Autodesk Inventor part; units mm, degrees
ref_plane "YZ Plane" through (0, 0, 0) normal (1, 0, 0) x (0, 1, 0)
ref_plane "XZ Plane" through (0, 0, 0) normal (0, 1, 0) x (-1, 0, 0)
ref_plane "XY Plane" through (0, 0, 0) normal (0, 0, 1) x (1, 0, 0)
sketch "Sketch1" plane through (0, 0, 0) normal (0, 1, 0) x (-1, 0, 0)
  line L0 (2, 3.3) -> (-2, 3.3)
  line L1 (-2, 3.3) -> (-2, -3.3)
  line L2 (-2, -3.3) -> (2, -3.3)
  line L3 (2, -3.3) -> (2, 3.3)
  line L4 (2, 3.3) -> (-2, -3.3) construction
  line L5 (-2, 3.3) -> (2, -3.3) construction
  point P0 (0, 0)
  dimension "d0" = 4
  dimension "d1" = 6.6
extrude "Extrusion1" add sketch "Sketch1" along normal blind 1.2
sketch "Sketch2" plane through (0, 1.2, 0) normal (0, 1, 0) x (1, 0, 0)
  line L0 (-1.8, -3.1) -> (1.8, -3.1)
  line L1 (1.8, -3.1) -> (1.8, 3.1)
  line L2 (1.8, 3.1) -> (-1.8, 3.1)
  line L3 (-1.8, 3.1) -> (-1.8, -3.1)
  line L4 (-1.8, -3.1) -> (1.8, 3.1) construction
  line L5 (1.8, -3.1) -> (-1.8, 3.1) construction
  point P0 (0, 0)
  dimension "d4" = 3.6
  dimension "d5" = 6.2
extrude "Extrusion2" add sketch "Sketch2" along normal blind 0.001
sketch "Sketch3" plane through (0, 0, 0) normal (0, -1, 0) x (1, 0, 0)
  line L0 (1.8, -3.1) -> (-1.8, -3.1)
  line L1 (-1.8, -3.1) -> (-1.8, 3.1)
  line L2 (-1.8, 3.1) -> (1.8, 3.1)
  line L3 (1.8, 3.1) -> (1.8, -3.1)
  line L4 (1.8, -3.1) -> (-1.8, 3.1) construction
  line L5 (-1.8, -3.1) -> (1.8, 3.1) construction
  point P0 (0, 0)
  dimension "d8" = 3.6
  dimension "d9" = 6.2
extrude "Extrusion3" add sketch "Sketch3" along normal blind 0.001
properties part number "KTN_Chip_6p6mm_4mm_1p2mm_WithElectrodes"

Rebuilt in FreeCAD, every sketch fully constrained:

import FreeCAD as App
import Part
import Sketcher
Q = App.Units.Quantity


def add_polygon(sketch, points):
    """Adds a closed chain of lines whose ends are joined by coincident constraints."""
    first, n = sketch.GeometryCount, len(points)
    for a, b in zip(points, points[1:] + points[:1]):
        sketch.addGeometry(Part.LineSegment(App.Vector(*a, 0), App.Vector(*b, 0)), False)
    for i in range(n):
        sketch.addConstraint(Sketcher.Constraint("Coincident", first + i, 2, first + (i + 1) % n, 1))

doc = App.newDocument("Part")
body = doc.addObject("PartDesign::Body", "Body")

# Sketch on XZ plane
sketch1 = body.newObject("Sketcher::SketchObject", "Sketch")
sketch1.AttachmentSupport = (doc.getObject("XZ_Plane"), [""])
sketch1.MapMode = "FlatFace"
add_polygon(sketch1, [(-2, -3.3), (-2, 3.3), (2, 3.3), (2, -3.3)])  # lines 0-3
sketch1.addConstraint([
    Sketcher.Constraint("Vertical", 0),
    Sketcher.Constraint("Horizontal", 1),
    Sketcher.Constraint("Vertical", 2),
    Sketcher.Constraint("Horizontal", 3),
    Sketcher.Constraint("Symmetric", 0, 2, 2, 2, -1, 1),
    Sketcher.Constraint("DistanceX", 1, 1, 1, 2, Q("4 mm")),
    Sketcher.Constraint("DistanceY", 0, 1, 0, 2, Q("6.6 mm")),
])
pad1 = body.newObject("PartDesign::Pad", "Pad")
pad1.Profile = sketch1
pad1.Length = 1.2
pad1.Reversed = True

# Sketch on XZ plane
sketch2 = body.newObject("Sketcher::SketchObject", "Sketch001")
sketch2.AttachmentSupport = (doc.getObject("XZ_Plane"), [""])
sketch2.MapMode = "FlatFace"
sketch2.AttachmentOffset = App.Placement(App.Vector(0, 0, -1.2), App.Rotation())
add_polygon(sketch2, [(-1.8, -3.1), (-1.8, 3.1), (1.8, 3.1), (1.8, -3.1)])  # lines 0-3
sketch2.addConstraint([
    Sketcher.Constraint("Vertical", 0),
    Sketcher.Constraint("Horizontal", 1),
    Sketcher.Constraint("Vertical", 2),
    Sketcher.Constraint("Horizontal", 3),
    Sketcher.Constraint("Symmetric", 0, 2, 2, 2, -1, 1),
    Sketcher.Constraint("DistanceX", 1, 1, 1, 2, Q("3.6 mm")),
    Sketcher.Constraint("DistanceY", 0, 1, 0, 2, Q("6.2 mm")),
])
pad2 = body.newObject("PartDesign::Pad", "Pad001")
pad2.Profile = sketch2
pad2.Length = 0.001
pad2.Reversed = True

# Sketch on XZ plane
sketch3 = body.newObject("Sketcher::SketchObject", "Sketch002")
sketch3.AttachmentSupport = (doc.getObject("XZ_Plane"), [""])
sketch3.MapMode = "FlatFace"
add_polygon(sketch3, [(-1.8, -3.1), (1.8, -3.1), (1.8, 3.1), (-1.8, 3.1)])  # lines 0-3
sketch3.addConstraint([
    Sketcher.Constraint("Horizontal", 0),
    Sketcher.Constraint("Vertical", 1),
    Sketcher.Constraint("Horizontal", 2),
    Sketcher.Constraint("Vertical", 3),
    Sketcher.Constraint("Symmetric", 0, 2, 2, 2, -1, 1),
    Sketcher.Constraint("DistanceX", 0, 1, 0, 2, Q("3.6 mm")),
    Sketcher.Constraint("DistanceY", 1, 1, 1, 2, Q("6.2 mm")),
])
pad3 = body.newObject("PartDesign::Pad", "Pad002")
pad3.Profile = sketch3
pad3.Length = 0.001

doc.recompute()
